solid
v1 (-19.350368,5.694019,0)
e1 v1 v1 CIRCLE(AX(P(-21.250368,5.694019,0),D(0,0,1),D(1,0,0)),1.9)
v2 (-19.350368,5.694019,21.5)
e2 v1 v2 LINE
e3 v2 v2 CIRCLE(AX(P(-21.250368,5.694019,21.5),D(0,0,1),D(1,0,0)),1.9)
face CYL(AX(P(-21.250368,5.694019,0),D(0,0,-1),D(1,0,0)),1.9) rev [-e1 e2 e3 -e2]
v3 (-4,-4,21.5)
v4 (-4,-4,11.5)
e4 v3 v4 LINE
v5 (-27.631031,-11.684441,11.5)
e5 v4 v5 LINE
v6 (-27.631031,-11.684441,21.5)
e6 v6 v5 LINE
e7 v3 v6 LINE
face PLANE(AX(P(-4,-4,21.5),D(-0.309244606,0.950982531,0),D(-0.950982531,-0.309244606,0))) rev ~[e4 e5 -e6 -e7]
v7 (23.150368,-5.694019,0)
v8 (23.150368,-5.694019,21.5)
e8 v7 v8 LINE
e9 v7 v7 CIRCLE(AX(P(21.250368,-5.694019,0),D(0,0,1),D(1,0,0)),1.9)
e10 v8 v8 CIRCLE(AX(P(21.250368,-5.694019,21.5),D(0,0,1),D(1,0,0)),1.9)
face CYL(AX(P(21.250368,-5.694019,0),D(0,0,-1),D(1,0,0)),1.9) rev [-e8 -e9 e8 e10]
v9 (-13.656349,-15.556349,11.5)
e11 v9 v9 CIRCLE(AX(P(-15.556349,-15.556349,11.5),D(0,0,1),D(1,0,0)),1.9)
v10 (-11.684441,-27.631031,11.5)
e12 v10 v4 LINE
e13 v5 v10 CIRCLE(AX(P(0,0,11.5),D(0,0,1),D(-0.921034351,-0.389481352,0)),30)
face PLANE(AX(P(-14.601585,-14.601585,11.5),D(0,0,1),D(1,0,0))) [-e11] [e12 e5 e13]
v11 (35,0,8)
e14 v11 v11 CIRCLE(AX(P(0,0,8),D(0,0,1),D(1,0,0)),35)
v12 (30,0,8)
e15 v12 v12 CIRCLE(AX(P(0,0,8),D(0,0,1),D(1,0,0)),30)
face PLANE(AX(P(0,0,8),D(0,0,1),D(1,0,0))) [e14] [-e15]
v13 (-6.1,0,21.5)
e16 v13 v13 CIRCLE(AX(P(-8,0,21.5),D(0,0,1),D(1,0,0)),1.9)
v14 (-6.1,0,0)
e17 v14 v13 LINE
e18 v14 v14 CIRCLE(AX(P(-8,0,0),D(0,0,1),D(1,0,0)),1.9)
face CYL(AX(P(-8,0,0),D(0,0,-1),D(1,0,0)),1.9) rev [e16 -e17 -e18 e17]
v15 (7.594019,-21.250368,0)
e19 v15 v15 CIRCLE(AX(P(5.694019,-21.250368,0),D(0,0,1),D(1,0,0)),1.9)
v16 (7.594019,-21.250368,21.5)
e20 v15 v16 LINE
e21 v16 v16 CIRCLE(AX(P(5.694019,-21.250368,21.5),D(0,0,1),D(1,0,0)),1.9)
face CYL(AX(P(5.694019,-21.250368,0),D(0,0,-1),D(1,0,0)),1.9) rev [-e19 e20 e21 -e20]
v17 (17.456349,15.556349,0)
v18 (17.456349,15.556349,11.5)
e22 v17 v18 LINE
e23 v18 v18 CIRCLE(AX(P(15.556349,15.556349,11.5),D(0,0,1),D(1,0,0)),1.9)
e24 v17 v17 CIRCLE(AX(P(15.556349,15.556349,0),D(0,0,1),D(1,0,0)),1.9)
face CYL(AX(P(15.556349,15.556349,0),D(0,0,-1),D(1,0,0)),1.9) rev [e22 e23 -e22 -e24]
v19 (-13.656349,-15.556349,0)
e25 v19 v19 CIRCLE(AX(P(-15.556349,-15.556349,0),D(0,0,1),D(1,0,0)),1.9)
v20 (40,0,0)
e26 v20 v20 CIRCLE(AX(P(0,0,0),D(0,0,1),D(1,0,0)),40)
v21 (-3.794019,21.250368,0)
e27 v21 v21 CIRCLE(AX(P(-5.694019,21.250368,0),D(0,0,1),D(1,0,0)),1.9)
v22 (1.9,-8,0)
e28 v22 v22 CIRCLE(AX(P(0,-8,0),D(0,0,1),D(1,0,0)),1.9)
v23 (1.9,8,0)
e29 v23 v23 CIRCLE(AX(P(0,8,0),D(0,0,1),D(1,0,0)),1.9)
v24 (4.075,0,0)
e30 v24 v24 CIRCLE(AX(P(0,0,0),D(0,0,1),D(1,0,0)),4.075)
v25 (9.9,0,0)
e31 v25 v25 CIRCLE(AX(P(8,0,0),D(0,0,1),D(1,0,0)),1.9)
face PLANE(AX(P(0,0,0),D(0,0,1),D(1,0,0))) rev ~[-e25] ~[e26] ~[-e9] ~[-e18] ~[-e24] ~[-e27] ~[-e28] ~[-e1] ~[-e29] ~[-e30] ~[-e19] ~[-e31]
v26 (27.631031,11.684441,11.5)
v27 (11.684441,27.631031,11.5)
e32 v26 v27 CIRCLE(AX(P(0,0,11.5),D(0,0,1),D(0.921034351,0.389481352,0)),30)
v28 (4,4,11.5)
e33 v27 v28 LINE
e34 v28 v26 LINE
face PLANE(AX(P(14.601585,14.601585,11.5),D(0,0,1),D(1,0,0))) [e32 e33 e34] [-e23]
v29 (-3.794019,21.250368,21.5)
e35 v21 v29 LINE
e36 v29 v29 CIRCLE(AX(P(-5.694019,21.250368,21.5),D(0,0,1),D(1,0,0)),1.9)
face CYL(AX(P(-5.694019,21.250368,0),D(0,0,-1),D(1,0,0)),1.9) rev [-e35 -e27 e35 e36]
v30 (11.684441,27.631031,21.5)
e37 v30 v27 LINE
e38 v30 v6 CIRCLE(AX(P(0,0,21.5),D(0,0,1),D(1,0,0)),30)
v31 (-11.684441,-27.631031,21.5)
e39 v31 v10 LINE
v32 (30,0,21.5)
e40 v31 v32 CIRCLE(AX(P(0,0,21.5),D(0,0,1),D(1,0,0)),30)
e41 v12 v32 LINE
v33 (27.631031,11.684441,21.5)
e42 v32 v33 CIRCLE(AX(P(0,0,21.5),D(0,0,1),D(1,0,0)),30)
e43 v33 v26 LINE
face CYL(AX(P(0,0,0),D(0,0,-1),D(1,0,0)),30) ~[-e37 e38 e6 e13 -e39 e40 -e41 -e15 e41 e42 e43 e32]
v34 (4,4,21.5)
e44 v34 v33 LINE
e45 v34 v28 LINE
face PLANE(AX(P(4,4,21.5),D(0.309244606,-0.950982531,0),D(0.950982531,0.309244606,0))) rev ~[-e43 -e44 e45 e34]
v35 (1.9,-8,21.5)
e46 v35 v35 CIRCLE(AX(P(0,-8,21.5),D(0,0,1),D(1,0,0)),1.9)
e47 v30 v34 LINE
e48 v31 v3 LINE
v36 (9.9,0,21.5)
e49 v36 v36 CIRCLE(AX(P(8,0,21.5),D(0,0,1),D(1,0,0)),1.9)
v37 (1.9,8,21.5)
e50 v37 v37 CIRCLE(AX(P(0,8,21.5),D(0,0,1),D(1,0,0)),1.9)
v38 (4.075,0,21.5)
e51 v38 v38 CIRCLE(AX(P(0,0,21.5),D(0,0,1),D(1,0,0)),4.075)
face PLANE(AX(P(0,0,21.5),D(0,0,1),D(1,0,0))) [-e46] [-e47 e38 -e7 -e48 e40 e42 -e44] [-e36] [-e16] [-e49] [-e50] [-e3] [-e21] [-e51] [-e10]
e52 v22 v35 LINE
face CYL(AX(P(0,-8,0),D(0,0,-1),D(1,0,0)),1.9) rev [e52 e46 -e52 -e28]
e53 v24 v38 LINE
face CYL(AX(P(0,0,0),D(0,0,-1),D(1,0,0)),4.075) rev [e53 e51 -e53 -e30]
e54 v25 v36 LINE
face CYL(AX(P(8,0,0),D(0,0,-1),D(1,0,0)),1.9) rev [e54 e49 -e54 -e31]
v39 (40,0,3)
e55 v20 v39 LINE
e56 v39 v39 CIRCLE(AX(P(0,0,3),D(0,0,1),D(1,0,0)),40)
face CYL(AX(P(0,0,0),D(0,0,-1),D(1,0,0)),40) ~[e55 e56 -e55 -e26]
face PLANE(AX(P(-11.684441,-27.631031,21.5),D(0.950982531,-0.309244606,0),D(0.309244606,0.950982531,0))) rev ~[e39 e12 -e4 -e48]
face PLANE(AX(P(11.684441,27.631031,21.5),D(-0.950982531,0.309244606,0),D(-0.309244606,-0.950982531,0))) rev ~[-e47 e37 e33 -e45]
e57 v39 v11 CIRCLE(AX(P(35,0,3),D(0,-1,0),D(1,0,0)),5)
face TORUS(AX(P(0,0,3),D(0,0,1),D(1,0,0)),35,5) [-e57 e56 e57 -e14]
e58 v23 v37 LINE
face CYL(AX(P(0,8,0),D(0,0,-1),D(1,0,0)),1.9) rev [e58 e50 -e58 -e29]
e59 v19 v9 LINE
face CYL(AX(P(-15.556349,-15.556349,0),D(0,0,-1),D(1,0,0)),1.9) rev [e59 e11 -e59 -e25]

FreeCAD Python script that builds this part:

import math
import FreeCAD as App
import Part
import Sketcher
Q = App.Units.Quantity


def edges_at(feature, points):
    """Names of the edges that pass closest to the given points."""
    edges = feature.Shape.Edges
    near = lambda p: min(range(len(edges)), key=lambda i: edges[i].distToShape(Part.Vertex(*p))[0])
    return sorted({f"Edge{near(p) + 1}" for p in points})

doc = App.newDocument("Part")
params = doc.addObject("Spreadsheet::Sheet", "Params")
for row, (alias, value) in enumerate([
    ("sketch1_diameter", "60 mm"),
    ("sketch1_diameter2", "3.8 mm"),
    ("sketch1_diameter3", "8.15 mm"),
    ("pad1_length", "21.5 mm"),
    ("sketch2_diameter", "80 mm"),
    ("sketch2_diameter2", "60 mm"),
    ("pad2_length", "8 mm"),
    ("sketch3_radius", "30 mm"),
    ("sketch3_diameter", "3.8 mm"),
    ("pocket1_length", "10 mm"),
    ("fillet_radius", "5 mm"),
], start=1):
    params.set(f"A{row}", alias)
    params.set(f"B{row}", "=" + value)
    params.setAlias(f"B{row}", alias)

body = doc.addObject("PartDesign::Body", "Body")

# Sketch on XY plane
sketch1 = body.newObject("Sketcher::SketchObject", "Sketch")
sketch1.AttachmentSupport = (doc.getObject("XY_Plane"), [""])
sketch1.MapMode = "FlatFace"
sketch1.addGeometry(Part.Circle(App.Vector(0, 0, 0), App.Vector(0, 0, 1), 30), False)
sketch1.addGeometry(Part.Circle(App.Vector(-15.6, -15.6, 0), App.Vector(0, 0, 1), 1.9), False)
sketch1.addGeometry(Part.Circle(App.Vector(5.7, -21.3, 0), App.Vector(0, 0, 1), 1.9), False)
sketch1.addGeometry(Part.Circle(App.Vector(0, -8, 0), App.Vector(0, 0, 1), 1.9), False)
sketch1.addGeometry(Part.Circle(App.Vector(21.3, -5.7, 0), App.Vector(0, 0, 1), 1.9), False)
sketch1.addGeometry(Part.Circle(App.Vector(-21.3, 5.7, 0), App.Vector(0, 0, 1), 1.9), False)
sketch1.addGeometry(Part.Circle(App.Vector(-8, 0, 0), App.Vector(0, 0, 1), 1.9), False)
sketch1.addGeometry(Part.Circle(App.Vector(-5.7, 21.3, 0), App.Vector(0, 0, 1), 1.9), False)
sketch1.addGeometry(Part.Circle(App.Vector(0, 0, 0), App.Vector(0, 0, 1), 4.1), False)
sketch1.addGeometry(Part.Circle(App.Vector(8, 0, 0), App.Vector(0, 0, 1), 1.9), False)
sketch1.addGeometry(Part.Circle(App.Vector(0, 8, 0), App.Vector(0, 0, 1), 1.9), False)
sketch1.addGeometry(Part.Circle(App.Vector(15.6, 15.6, 0), App.Vector(0, 0, 1), 1.9), False)
sketch1.addConstraint(Sketcher.Constraint("Coincident", 0, 3, -1, 1))
sketch1.addConstraint(Sketcher.Constraint("Coincident", 8, 3, -1, 1))
sketch1.addConstraint(Sketcher.Constraint("Equal", 1, 2))
sketch1.addConstraint(Sketcher.Constraint("Equal", 2, 3))
sketch1.addConstraint(Sketcher.Constraint("Equal", 3, 4))
sketch1.addConstraint(Sketcher.Constraint("Equal", 4, 5))
sketch1.addConstraint(Sketcher.Constraint("Equal", 5, 6))
sketch1.addConstraint(Sketcher.Constraint("Equal", 6, 7))
sketch1.addConstraint(Sketcher.Constraint("Equal", 7, 9))
sketch1.addConstraint(Sketcher.Constraint("Equal", 9, 10))
sketch1.addConstraint(Sketcher.Constraint("Equal", 10, 11))
sketch1.addConstraint(Sketcher.Constraint("Symmetric", 4, 3, 5, 3, -1, 1))
sketch1.addConstraint(Sketcher.Constraint("Symmetric", 2, 3, 7, 3, -1, 1))
sketch1.addConstraint(Sketcher.Constraint("Symmetric", 6, 3, 9, 3, -1, 1))
sketch1.addConstraint(Sketcher.Constraint("Symmetric", 3, 3, 10, 3, -1, 1))
sketch1.addConstraint(Sketcher.Constraint("Symmetric", 1, 3, 11, 3, -1, 1))
sketch1.addConstraint(Sketcher.Constraint("PointOnObject", 3, 3, -2))
sketch1.addConstraint(Sketcher.Constraint("PointOnObject", 6, 3, -1))
sketch1.addConstraint(Sketcher.Constraint("Diameter", 0, Q("60 mm")))
sketch1.addConstraint(Sketcher.Constraint("Diameter", 1, Q("3.8 mm")))
sketch1.addConstraint(Sketcher.Constraint("Diameter", 8, Q("8.15 mm")))
sketch1.addConstraint(Sketcher.Constraint("DistanceY", 3, 3, -1, 1, Q("8 mm")))
sketch1.addConstraint(Sketcher.Constraint("DistanceX", 6, 3, -1, 1, Q("8 mm")))
sketch1.addConstraint(Sketcher.Constraint("DistanceX", 1, 3, -1, 1, Q("15.556349 mm")))
sketch1.addConstraint(Sketcher.Constraint("DistanceY", 1, 3, -1, 1, Q("15.556349 mm")))
sketch1.addConstraint(Sketcher.Constraint("DistanceX", -1, 1, 2, 3, Q("5.694019 mm")))
sketch1.addConstraint(Sketcher.Constraint("DistanceY", 2, 3, -1, 1, Q("21.250368 mm")))
sketch1.addConstraint(Sketcher.Constraint("DistanceX", -1, 1, 4, 3, Q("21.250368 mm")))
sketch1.addConstraint(Sketcher.Constraint("DistanceY", 4, 3, -1, 1, Q("5.694019 mm")))
sketch1.setExpression("Constraints[18]", "Params.sketch1_diameter")
sketch1.setExpression("Constraints[19]", "Params.sketch1_diameter2")
sketch1.setExpression("Constraints[20]", "Params.sketch1_diameter3")
pad1 = body.newObject("PartDesign::Pad", "Pad")
pad1.Profile = sketch1
pad1.setExpression("Length", "Params.pad1_length")

# Sketch on XY plane
sketch2 = body.newObject("Sketcher::SketchObject", "Sketch001")
sketch2.AttachmentSupport = (doc.getObject("XY_Plane"), [""])
sketch2.MapMode = "FlatFace"
sketch2.addGeometry(Part.Circle(App.Vector(0, 0, 0), App.Vector(0, 0, 1), 40), False)
sketch2.addGeometry(Part.Circle(App.Vector(0, 0, 0), App.Vector(0, 0, 1), 30), False)
sketch2.addConstraint(Sketcher.Constraint("Coincident", 0, 3, -1, 1))
sketch2.addConstraint(Sketcher.Constraint("Coincident", 1, 3, -1, 1))
sketch2.addConstraint(Sketcher.Constraint("Diameter", 0, Q("80 mm")))
sketch2.addConstraint(Sketcher.Constraint("Diameter", 1, Q("60 mm")))
sketch2.setExpression("Constraints[2]", "Params.sketch2_diameter")
sketch2.setExpression("Constraints[3]", "Params.sketch2_diameter2")
pad2 = body.newObject("PartDesign::Pad", "Pad001")
pad2.Profile = sketch2
pad2.setExpression("Length", "Params.pad2_length")

# Sketch on XY plane
sketch3 = body.newObject("Sketcher::SketchObject", "Sketch002")
sketch3.AttachmentSupport = (doc.getObject("XY_Plane"), [""])
sketch3.MapMode = "FlatFace"
sketch3.AttachmentOffset = App.Placement(App.Vector(0, 0, 21.5), App.Rotation())
sketch3.addGeometry(Part.LineSegment(App.Vector(-11.7, -27.6, 0), App.Vector(-4, -4, 0)), False)
sketch3.addGeometry(Part.LineSegment(App.Vector(-4, -4, 0), App.Vector(-27.6, -11.7, 0)), False)
sketch3.addGeometry(Part.ArcOfCircle(Part.Circle(App.Vector(0, 0, 0), App.Vector(0, 0, 1), 30), math.radians(-157), math.radians(-113)), False)
sketch3.addGeometry(Part.Circle(App.Vector(-15.6, -15.6, 0), App.Vector(0, 0, 1), 1.9), False)
sketch3.addGeometry(Part.ArcOfCircle(Part.Circle(App.Vector(0, 0, 0), App.Vector(0, 0, 1), 30), math.radians(23), math.radians(67)), False)
sketch3.addGeometry(Part.LineSegment(App.Vector(11.7, 27.6, 0), App.Vector(4, 4, 0)), False)
sketch3.addGeometry(Part.LineSegment(App.Vector(4, 4, 0), App.Vector(27.6, 11.7, 0)), False)
sketch3.addGeometry(Part.Circle(App.Vector(15.6, 15.6, 0), App.Vector(0, 0, 1), 1.9), False)
sketch3.addConstraint(Sketcher.Constraint("Coincident", 0, 2, 1, 1))
sketch3.addConstraint(Sketcher.Constraint("Coincident", 1, 2, 2, 1))
sketch3.addConstraint(Sketcher.Constraint("Coincident", 2, 2, 0, 1))
sketch3.addConstraint(Sketcher.Constraint("Coincident", 4, 2, 5, 1))
sketch3.addConstraint(Sketcher.Constraint("Coincident", 5, 2, 6, 1))
sketch3.addConstraint(Sketcher.Constraint("Coincident", 6, 2, 4, 1))
sketch3.addConstraint(Sketcher.Constraint("Coincident", 2, 3, -1, 1))
sketch3.addConstraint(Sketcher.Constraint("Coincident", 4, 3, -1, 1))
sketch3.addConstraint(Sketcher.Constraint("Equal", 2, 4))
sketch3.addConstraint(Sketcher.Constraint("Equal", 3, 7))
sketch3.addConstraint(Sketcher.Constraint("Symmetric", 3, 3, 7, 3, -1, 1))
sketch3.addConstraint(Sketcher.Constraint("Symmetric", 0, 2, 5, 2, -1, 1))
sketch3.addConstraint(Sketcher.Constraint("Parallel", 0, 5))
sketch3.addConstraint(Sketcher.Constraint("Parallel", 1, 6))
sketch3.addConstraint(Sketcher.Constraint("Equal", 0, 1))
sketch3.addConstraint(Sketcher.Constraint("Radius", 2, Q("30 mm")))
sketch3.addConstraint(Sketcher.Constraint("Diameter", 3, Q("3.8 mm")))
sketch3.addConstraint(Sketcher.Constraint("DistanceX", 0, 2, -1, 1, Q("4 mm")))
sketch3.addConstraint(Sketcher.Constraint("DistanceY", 0, 2, -1, 1, Q("4 mm")))
sketch3.addConstraint(Sketcher.Constraint("DistanceX", 3, 3, 7, 3, Q("31.112698 mm")))
sketch3.addConstraint(Sketcher.Constraint("DistanceY", 3, 3, 7, 3, Q("31.112698 mm")))
sketch3.addConstraint(Sketcher.Constraint("Distance", 0, Q("24.849069 mm")))
sketch3.setExpression("Constraints[15]", "Params.sketch3_radius")
sketch3.setExpression("Constraints[16]", "Params.sketch3_diameter")
pocket1 = body.newObject("PartDesign::Pocket", "Pocket")
pocket1.Profile = sketch3
pocket1.setExpression("Length", "Params.pocket1_length")
doc.recompute()

fillet = body.newObject("PartDesign::Fillet", "Fillet")
fillet.Base = (pocket1, edges_at(pocket1, [(-40, 0, 8)]))
fillet.setExpression("Radius", "Params.fillet_radius")

doc.recompute()
